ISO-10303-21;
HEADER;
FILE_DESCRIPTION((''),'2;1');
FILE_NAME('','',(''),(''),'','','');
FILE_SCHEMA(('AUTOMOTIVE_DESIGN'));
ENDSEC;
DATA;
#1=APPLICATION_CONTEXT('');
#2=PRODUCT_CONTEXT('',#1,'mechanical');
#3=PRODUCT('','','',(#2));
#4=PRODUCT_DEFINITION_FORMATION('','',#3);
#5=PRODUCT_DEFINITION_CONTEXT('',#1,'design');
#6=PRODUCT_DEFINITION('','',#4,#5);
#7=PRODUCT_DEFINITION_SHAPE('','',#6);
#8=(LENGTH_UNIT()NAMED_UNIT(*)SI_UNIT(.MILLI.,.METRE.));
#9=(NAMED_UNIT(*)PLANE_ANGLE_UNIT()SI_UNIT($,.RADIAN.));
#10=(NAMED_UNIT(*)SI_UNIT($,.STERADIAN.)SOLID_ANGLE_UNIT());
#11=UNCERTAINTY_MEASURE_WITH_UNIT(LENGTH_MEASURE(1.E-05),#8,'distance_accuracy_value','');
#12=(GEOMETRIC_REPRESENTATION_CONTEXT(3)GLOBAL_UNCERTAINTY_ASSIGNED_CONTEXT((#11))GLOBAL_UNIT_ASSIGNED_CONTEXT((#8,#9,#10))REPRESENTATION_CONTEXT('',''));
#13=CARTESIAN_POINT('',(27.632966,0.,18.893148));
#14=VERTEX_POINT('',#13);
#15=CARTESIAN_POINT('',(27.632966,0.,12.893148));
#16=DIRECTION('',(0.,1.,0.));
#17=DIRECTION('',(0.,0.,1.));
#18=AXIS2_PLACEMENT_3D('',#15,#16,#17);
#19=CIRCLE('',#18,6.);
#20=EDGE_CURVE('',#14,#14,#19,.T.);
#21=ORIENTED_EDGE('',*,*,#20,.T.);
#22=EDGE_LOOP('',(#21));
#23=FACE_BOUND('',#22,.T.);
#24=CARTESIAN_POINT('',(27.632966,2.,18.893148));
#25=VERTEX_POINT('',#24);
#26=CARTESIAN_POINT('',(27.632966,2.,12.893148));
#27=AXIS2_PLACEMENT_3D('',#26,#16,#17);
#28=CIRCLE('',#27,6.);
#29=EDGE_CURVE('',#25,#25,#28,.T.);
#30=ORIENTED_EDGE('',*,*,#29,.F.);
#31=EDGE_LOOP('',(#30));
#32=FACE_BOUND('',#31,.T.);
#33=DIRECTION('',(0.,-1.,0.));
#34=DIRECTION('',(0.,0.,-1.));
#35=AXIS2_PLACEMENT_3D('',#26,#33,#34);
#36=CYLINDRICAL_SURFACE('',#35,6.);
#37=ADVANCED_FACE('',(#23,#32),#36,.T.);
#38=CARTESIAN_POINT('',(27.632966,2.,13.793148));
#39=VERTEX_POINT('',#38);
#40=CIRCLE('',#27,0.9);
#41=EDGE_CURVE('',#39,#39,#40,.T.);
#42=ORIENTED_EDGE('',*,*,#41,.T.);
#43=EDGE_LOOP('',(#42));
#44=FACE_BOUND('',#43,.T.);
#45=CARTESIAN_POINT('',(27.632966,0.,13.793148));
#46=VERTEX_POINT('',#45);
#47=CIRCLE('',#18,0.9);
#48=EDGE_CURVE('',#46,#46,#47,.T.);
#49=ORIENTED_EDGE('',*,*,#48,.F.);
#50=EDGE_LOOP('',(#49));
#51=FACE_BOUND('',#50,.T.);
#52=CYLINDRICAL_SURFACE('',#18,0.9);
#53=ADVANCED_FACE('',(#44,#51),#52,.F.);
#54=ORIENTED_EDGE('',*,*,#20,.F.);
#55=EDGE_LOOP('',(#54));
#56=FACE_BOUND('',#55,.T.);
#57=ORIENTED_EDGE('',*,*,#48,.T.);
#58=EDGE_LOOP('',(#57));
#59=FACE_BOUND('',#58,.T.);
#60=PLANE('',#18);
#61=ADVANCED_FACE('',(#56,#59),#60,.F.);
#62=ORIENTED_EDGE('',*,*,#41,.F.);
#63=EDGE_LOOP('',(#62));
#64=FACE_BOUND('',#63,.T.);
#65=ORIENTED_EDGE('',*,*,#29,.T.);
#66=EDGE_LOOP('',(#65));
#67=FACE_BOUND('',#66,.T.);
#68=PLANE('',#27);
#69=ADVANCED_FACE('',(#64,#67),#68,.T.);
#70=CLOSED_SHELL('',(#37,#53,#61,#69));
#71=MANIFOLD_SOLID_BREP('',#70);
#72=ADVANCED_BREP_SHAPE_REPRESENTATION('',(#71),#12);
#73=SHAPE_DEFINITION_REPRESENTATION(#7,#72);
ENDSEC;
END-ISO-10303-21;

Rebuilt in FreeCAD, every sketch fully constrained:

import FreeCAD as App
import Part
import Sketcher
from FreeCAD import Vector

doc = App.newDocument("Part")
body = doc.addObject("PartDesign::Body", "Body")

# Sketch on XZ plane
sketch1 = body.newObject("Sketcher::SketchObject", "Sketch")
sketch1.AttachmentSupport = (doc.getObject("XZ_Plane"), [""])
sketch1.MapMode = "FlatFace"
sketch1.addGeometry(Part.Circle(Vector(27.632966, 12.893148, 0), Vector(0, 0, 1), 6), False)
sketch1.addConstraint([
    Sketcher.Constraint("Diameter", 0, 12.0),
    Sketcher.Constraint("DistanceX", -1, 1, 0, 3, 27.632966),
    Sketcher.Constraint("DistanceY", -1, 1, 0, 3, 12.893148),
])
pad1 = body.newObject("PartDesign::Pad", "Pad")
pad1.Profile = sketch1
pad1.Length = 2
pad1.Reversed = True

# Sketch on XZ plane
sketch2 = body.newObject("Sketcher::SketchObject", "Sketch001")
sketch2.AttachmentSupport = (doc.getObject("XZ_Plane"), [""])
sketch2.MapMode = "FlatFace"
sketch2.AttachmentOffset = App.Placement(Vector(0, 0, -2), App.Rotation())
sketch2.addGeometry(Part.Circle(Vector(27.632966, 12.893148, 0), Vector(0, 0, 1), 0.9), False)
sketch2.addConstraint([
    Sketcher.Constraint("Diameter", 0, 1.8),
    Sketcher.Constraint("DistanceX", -1, 1, 0, 3, 27.632966),
    Sketcher.Constraint("DistanceY", -1, 1, 0, 3, 12.893148),
])
pocket1 = body.newObject("PartDesign::Pocket", "Pocket")
pocket1.Profile = sketch2
pocket1.Length = 2
pocket1.Reversed = True

doc.recompute()
